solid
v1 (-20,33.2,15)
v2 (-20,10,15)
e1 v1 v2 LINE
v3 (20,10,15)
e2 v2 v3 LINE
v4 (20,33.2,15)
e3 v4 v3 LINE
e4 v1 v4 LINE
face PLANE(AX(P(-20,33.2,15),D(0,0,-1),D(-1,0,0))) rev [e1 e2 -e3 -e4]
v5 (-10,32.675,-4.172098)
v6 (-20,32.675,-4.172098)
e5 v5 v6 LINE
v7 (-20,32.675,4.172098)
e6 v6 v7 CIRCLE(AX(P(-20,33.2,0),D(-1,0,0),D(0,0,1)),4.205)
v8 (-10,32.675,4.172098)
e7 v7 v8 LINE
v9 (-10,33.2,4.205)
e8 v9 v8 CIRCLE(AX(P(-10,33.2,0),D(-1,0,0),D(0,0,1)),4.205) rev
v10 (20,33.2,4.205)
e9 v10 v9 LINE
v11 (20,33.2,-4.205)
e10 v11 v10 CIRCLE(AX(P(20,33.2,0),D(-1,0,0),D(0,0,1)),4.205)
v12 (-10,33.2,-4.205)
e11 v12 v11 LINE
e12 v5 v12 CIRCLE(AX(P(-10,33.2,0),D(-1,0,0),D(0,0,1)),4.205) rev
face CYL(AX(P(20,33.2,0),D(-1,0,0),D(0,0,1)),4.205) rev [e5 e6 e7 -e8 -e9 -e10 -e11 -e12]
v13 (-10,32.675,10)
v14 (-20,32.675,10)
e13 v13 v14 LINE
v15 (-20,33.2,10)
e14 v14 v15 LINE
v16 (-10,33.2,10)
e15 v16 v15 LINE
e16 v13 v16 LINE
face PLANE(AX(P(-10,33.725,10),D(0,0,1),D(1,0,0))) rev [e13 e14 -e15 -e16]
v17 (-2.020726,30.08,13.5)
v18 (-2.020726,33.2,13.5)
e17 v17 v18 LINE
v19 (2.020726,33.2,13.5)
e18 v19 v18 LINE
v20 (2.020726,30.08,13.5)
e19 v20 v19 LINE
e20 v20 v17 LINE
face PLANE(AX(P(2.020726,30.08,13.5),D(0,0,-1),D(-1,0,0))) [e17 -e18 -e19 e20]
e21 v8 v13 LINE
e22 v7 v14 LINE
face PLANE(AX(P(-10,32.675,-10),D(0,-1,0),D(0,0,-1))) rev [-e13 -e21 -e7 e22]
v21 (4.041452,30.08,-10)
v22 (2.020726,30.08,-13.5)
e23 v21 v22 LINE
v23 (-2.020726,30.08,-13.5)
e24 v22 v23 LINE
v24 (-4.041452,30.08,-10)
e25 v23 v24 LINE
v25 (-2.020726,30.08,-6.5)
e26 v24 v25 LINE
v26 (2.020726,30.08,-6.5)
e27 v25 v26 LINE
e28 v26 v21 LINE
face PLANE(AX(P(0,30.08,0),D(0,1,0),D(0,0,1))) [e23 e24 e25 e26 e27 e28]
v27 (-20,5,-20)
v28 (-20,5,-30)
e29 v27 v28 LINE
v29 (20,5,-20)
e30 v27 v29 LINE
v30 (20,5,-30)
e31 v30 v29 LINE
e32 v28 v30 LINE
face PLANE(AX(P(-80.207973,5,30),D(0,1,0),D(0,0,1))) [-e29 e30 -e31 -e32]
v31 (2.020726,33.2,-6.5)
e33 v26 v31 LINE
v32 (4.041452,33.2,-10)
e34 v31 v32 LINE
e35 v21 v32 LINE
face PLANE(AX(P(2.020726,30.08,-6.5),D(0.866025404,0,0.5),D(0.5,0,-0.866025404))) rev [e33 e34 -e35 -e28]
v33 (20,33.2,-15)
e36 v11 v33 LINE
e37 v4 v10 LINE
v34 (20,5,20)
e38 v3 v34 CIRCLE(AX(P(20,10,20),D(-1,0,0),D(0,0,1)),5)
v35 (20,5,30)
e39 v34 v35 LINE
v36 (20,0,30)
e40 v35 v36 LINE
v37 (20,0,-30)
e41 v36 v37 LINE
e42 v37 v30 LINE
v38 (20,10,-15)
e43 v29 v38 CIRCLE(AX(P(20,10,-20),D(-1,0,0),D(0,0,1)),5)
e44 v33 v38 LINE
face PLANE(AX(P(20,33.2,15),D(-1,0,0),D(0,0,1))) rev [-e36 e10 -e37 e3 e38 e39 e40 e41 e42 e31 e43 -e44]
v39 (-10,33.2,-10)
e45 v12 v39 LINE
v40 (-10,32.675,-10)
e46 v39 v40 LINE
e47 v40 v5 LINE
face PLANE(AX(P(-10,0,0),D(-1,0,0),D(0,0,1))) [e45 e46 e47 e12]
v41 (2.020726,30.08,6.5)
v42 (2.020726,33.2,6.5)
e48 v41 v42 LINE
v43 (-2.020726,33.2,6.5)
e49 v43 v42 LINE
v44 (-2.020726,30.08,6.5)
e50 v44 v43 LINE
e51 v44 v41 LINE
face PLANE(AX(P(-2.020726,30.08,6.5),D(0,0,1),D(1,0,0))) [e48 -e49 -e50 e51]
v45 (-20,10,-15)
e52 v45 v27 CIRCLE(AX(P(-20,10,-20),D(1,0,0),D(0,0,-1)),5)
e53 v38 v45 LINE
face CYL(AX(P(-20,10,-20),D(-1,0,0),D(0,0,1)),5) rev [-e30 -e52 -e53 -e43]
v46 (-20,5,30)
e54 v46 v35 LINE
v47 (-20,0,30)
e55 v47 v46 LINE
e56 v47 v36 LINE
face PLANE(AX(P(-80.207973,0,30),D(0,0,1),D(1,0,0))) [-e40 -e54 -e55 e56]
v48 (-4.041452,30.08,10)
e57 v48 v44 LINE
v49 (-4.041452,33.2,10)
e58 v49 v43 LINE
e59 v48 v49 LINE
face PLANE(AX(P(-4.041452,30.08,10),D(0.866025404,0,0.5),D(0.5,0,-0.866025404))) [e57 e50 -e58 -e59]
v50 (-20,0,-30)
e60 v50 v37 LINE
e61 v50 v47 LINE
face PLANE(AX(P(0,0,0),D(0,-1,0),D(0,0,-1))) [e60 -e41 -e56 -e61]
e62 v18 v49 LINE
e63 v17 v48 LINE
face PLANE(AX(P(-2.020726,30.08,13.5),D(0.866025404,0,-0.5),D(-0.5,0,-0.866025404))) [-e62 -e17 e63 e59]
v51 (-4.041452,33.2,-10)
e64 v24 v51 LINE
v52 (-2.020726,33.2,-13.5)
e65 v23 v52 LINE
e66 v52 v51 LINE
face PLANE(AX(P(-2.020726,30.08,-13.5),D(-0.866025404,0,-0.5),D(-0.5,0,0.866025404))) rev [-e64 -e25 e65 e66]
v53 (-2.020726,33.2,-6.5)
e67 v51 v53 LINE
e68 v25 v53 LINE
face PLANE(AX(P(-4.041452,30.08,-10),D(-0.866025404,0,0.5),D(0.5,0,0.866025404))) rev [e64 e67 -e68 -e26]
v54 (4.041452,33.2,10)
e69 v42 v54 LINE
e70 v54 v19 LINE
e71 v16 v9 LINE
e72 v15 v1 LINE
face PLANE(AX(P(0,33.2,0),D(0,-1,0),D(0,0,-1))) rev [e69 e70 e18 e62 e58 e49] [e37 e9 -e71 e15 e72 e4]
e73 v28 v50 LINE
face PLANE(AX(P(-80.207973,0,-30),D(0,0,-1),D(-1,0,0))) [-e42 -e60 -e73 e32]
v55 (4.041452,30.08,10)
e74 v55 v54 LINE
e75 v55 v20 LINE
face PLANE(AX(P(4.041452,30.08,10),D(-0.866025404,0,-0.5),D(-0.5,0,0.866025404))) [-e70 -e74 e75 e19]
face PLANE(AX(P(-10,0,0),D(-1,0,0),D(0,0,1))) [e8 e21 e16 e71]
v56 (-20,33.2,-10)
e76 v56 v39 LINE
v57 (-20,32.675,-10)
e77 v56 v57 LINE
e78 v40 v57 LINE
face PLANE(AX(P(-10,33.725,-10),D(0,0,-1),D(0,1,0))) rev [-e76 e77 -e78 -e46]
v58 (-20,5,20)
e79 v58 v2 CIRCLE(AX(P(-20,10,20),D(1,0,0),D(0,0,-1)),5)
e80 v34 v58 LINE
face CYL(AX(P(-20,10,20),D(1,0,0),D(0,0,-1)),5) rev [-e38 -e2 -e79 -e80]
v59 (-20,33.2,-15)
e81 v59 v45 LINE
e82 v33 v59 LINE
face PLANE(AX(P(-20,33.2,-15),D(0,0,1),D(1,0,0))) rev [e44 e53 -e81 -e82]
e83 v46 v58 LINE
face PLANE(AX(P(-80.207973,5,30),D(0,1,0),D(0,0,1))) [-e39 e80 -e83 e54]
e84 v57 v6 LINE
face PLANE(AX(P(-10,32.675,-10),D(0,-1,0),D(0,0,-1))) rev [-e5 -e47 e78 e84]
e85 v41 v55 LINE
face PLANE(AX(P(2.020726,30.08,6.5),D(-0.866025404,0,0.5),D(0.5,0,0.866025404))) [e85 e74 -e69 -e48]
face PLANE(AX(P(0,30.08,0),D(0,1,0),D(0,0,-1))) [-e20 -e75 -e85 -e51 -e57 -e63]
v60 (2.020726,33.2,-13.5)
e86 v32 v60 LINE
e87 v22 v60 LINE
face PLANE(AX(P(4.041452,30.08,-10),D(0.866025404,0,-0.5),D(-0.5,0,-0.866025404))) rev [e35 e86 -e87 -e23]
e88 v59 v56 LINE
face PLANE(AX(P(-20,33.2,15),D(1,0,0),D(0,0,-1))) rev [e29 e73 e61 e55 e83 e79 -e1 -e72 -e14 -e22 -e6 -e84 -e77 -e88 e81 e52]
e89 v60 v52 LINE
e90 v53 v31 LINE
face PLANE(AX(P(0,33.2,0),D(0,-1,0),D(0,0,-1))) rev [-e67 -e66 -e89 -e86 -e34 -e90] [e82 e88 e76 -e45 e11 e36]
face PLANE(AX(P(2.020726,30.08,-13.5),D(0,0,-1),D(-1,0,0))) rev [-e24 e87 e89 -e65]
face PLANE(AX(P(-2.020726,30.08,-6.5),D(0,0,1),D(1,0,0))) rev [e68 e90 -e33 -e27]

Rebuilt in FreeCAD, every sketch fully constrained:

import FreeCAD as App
import Part
import Sketcher

V = App.Vector
Q = App.Units.Quantity


def edges_at(feature, points):
    """Names of the edges that pass closest to the given points."""
    edges = feature.Shape.Edges
    near = lambda p: min(range(len(edges)), key=lambda i: edges[i].distToShape(Part.Vertex(*p))[0])
    return sorted({f"Edge{near(p) + 1}" for p in points})

doc = App.newDocument("Part")
params = doc.addObject("Spreadsheet::Sheet", "Params")
for row, (alias, value) in enumerate([
    ("sketch1_width", "40 mm"),
    ("sketch1_height", "30 mm"),
    ("pad1_length", "33.2 mm"),
    ("sketch2_diameter", "8.41 mm"),
    ("pocket2_length", "3.12 mm"),
    ("sketch4_width", "5 mm"),
    ("sketch4_height", "60 mm"),
    ("pad2_length", "40 mm"),
    ("fillet_radius", "5 mm"),
    ("sketch5_height", "20 mm"),
    ("sketch5_width", "1.05 mm"),
    ("pocket3_length", "10 mm"),
], start=1):
    params.set(f"A{row}", alias)
    params.set(f"B{row}", "=" + value)
    params.setAlias(f"B{row}", alias)

body = doc.addObject("PartDesign::Body", "Body")

# Sketch on XZ plane
sketch1 = body.newObject("Sketcher::SketchObject", "Sketch")
sketch1.AttachmentSupport = (doc.getObject("XZ_Plane"), [""])
sketch1.MapMode = "FlatFace"
sketch1.addGeometry(Part.LineSegment(V(-20, -15, 0), V(-20, 15, 0)), False)
sketch1.addGeometry(Part.LineSegment(V(-20, 15, 0), V(20, 15, 0)), False)
sketch1.addGeometry(Part.LineSegment(V(20, 15, 0), V(20, -15, 0)), False)
sketch1.addGeometry(Part.LineSegment(V(20, -15, 0), V(-20, -15, 0)), False)
sketch1.addConstraint(Sketcher.Constraint("Coincident", 0, 2, 1, 1))
sketch1.addConstraint(Sketcher.Constraint("Coincident", 1, 2, 2, 1))
sketch1.addConstraint(Sketcher.Constraint("Coincident", 2, 2, 3, 1))
sketch1.addConstraint(Sketcher.Constraint("Coincident", 3, 2, 0, 1))
sketch1.addConstraint(Sketcher.Constraint("Vertical", 0))
sketch1.addConstraint(Sketcher.Constraint("Horizontal", 1))
sketch1.addConstraint(Sketcher.Constraint("Vertical", 2))
sketch1.addConstraint(Sketcher.Constraint("Horizontal", 3))
sketch1.addConstraint(Sketcher.Constraint("Symmetric", 0, 2, 2, 2, -1, 1))
sketch1.addConstraint(Sketcher.Constraint("DistanceX", 1, 1, 1, 2, 40.0))
sketch1.addConstraint(Sketcher.Constraint("DistanceY", 0, 1, 0, 2, 30.0))
sketch1.setExpression("Constraints[9]", "Params.sketch1_width")
sketch1.setExpression("Constraints[10]", "Params.sketch1_height")
pad1 = body.newObject("PartDesign::Pad", "Pad")
pad1.Profile = sketch1
pad1.setExpression("Length", "Params.pad1_length")
pad1.Reversed = True

# Sketch on YZ plane
sketch2 = body.newObject("Sketcher::SketchObject", "Sketch001")
sketch2.AttachmentSupport = (doc.getObject("YZ_Plane"), [""])
sketch2.MapMode = "FlatFace"
sketch2.AttachmentOffset = App.Placement(V(0, 0, -20), App.Rotation())
sketch2.addGeometry(Part.Circle(V(33.2, 0, 0), V(0, 0, 1), 4.205), False)
sketch2.addConstraint(Sketcher.Constraint("PointOnObject", 0, 3, -1))
sketch2.addConstraint(Sketcher.Constraint("Diameter", 0, 8.41))
sketch2.addConstraint(Sketcher.Constraint("DistanceX", -1, 1, 0, 3, 33.2))
sketch2.setExpression("Constraints[1]", "Params.sketch2_diameter")
pocket1 = body.newObject("PartDesign::Pocket", "Pocket")
pocket1.Profile = sketch2
pocket1.Type = "ThroughAll"
pocket1.Reversed = True

# Sketch on XZ plane
sketch3 = body.newObject("Sketcher::SketchObject", "Sketch002")
sketch3.AttachmentSupport = (doc.getObject("XZ_Plane"), [""])
sketch3.MapMode = "FlatFace"
sketch3.AttachmentOffset = App.Placement(V(0, 0, -33.2), App.Rotation())
sketch3.addGeometry(Part.LineSegment(V(2.020726, -6.5, 0), V(4.041452, -10, 0)), False)
sketch3.addGeometry(Part.LineSegment(V(4.041452, -10, 0), V(2.020726, -13.5, 0)), False)
sketch3.addGeometry(Part.LineSegment(V(2.020726, -13.5, 0), V(-2.020726, -13.5, 0)), False)
sketch3.addGeometry(Part.LineSegment(V(-2.020726, -13.5, 0), V(-4.041452, -10, 0)), False)
sketch3.addGeometry(Part.LineSegment(V(-4.041452, -10, 0), V(-2.020726, -6.5, 0)), False)
sketch3.addGeometry(Part.LineSegment(V(-2.020726, -6.5, 0), V(2.020726, -6.5, 0)), False)
sketch3.addConstraint(Sketcher.Constraint("Coincident", 0, 2, 1, 1))
sketch3.addConstraint(Sketcher.Constraint("Coincident", 1, 2, 2, 1))
sketch3.addConstraint(Sketcher.Constraint("Coincident", 2, 2, 3, 1))
sketch3.addConstraint(Sketcher.Constraint("Coincident", 3, 2, 4, 1))
sketch3.addConstraint(Sketcher.Constraint("Coincident", 4, 2, 5, 1))
sketch3.addConstraint(Sketcher.Constraint("Coincident", 5, 2, 0, 1))
sketch3.addConstraint(Sketcher.Constraint("Horizontal", 2))
sketch3.addConstraint(Sketcher.Constraint("Horizontal", 5))
sketch3.addConstraint(Sketcher.Constraint("Symmetric", 0, 2, 3, 2, -2))
sketch3.addConstraint(Sketcher.Constraint("Parallel", 0, 3))
sketch3.addConstraint(Sketcher.Constraint("Parallel", 1, 4))
sketch3.addConstraint(Sketcher.Constraint("Vertical", 2, 2, 4, 2))
sketch3.addConstraint(Sketcher.Constraint("Vertical", 1, 2, 5, 2))
sketch3.addConstraint(Sketcher.Constraint("Angle", 0, Q("-60 deg")))
sketch3.addConstraint(Sketcher.Constraint("DistanceY", 0, 2, -1, 1, 10.0))
sketch3.addConstraint(Sketcher.Constraint("DistanceY", 2, 2, 4, 2, 7.0))
sketch3.addConstraint(Sketcher.Constraint("DistanceX", 2, 2, 2, 1, 4.041452))
pocket2 = body.newObject("PartDesign::Pocket", "Pocket001")
pocket2.Profile = sketch3
pocket2.setExpression("Length", "Params.pocket2_length")
pocket2.Reversed = True
doc.recompute()

mirrored = body.newObject("PartDesign::Mirrored", "Mirrored")
mirrored.Originals = [pocket2]
mirrored.MirrorPlane = (doc.getObject("XY_Plane"), [""])
body.Tip = mirrored

# Sketch on YZ plane
sketch4 = body.newObject("Sketcher::SketchObject", "Sketch003")
sketch4.AttachmentSupport = (doc.getObject("YZ_Plane"), [""])
sketch4.MapMode = "FlatFace"
sketch4.AttachmentOffset = App.Placement(V(0, 0, 20), App.Rotation())
sketch4.addGeometry(Part.LineSegment(V(5, 30, 0), V(0, 30, 0)), False)
sketch4.addGeometry(Part.LineSegment(V(0, 30, 0), V(0, -30, 0)), False)
sketch4.addGeometry(Part.LineSegment(V(0, -30, 0), V(5, -30, 0)), False)
sketch4.addGeometry(Part.LineSegment(V(5, -30, 0), V(5, 30, 0)), False)
sketch4.addConstraint(Sketcher.Constraint("Coincident", 0, 2, 1, 1))
sketch4.addConstraint(Sketcher.Constraint("Coincident", 1, 2, 2, 1))
sketch4.addConstraint(Sketcher.Constraint("Coincident", 2, 2, 3, 1))
sketch4.addConstraint(Sketcher.Constraint("Coincident", 3, 2, 0, 1))
sketch4.addConstraint(Sketcher.Constraint("Horizontal", 0))
sketch4.addConstraint(Sketcher.Constraint("Vertical", 1))
sketch4.addConstraint(Sketcher.Constraint("Horizontal", 2))
sketch4.addConstraint(Sketcher.Constraint("Vertical", 3))
sketch4.addConstraint(Sketcher.Constraint("Symmetric", 0, 2, 1, 2, -1, 1))
sketch4.addConstraint(Sketcher.Constraint("DistanceX", 0, 2, 0, 1, 5.0))
sketch4.addConstraint(Sketcher.Constraint("DistanceY", 1, 2, 1, 1, 60.0))
sketch4.setExpression("Constraints[9]", "Params.sketch4_width")
sketch4.setExpression("Constraints[10]", "Params.sketch4_height")
pad2 = body.newObject("PartDesign::Pad", "Pad001")
pad2.Profile = sketch4
pad2.setExpression("Length", "Params.pad2_length")
pad2.Reversed = True
doc.recompute()

fillet = body.newObject("PartDesign::Fillet", "Fillet")
fillet.Base = (pad2, edges_at(pad2, [(0, 5, -15), (0, 5, 15)]))
fillet.setExpression("Radius", "Params.fillet_radius")

# Sketch on YZ plane
sketch5 = body.newObject("Sketcher::SketchObject", "Sketch004")
sketch5.AttachmentSupport = (doc.getObject("YZ_Plane"), [""])
sketch5.MapMode = "FlatFace"
sketch5.AttachmentOffset = App.Placement(V(0, 0, -20), App.Rotation())
sketch5.addGeometry(Part.LineSegment(V(33.725, -10, 0), V(32.675, -10, 0)), False)
sketch5.addGeometry(Part.LineSegment(V(32.675, -10, 0), V(32.675, 10, 0)), False)
sketch5.addGeometry(Part.LineSegment(V(32.675, 10, 0), V(33.725, 10, 0)), False)
sketch5.addGeometry(Part.LineSegment(V(33.725, 10, 0), V(33.725, -10, 0)), False)
sketch5.addConstraint(Sketcher.Constraint("Coincident", 0, 2, 1, 1))
sketch5.addConstraint(Sketcher.Constraint("Coincident", 1, 2, 2, 1))
sketch5.addConstraint(Sketcher.Constraint("Coincident", 2, 2, 3, 1))
sketch5.addConstraint(Sketcher.Constraint("Coincident", 3, 2, 0, 1))
sketch5.addConstraint(Sketcher.Constraint("Horizontal", 0))
sketch5.addConstraint(Sketcher.Constraint("Vertical", 1))
sketch5.addConstraint(Sketcher.Constraint("Horizontal", 2))
sketch5.addConstraint(Sketcher.Constraint("Vertical", 3))
sketch5.addConstraint(Sketcher.Constraint("DistanceY", 1, 1, 1, 2, 20.0))
sketch5.addConstraint(Sketcher.Constraint("DistanceY", 0, 2, -1, 1, 10.0))
sketch5.addConstraint(Sketcher.Constraint("DistanceX", 0, 2, 0, 1, 1.05))
sketch5.addConstraint(Sketcher.Constraint("DistanceX", -1, 1, 0, 2, 32.675))
sketch5.setExpression("Constraints[8]", "Params.sketch5_height")
sketch5.setExpression("Constraints[10]", "Params.sketch5_width")
pocket3 = body.newObject("PartDesign::Pocket", "Pocket002")
pocket3.Profile = sketch5
pocket3.setExpression("Length", "Params.pocket3_length")
pocket3.Reversed = True

doc.recompute()
